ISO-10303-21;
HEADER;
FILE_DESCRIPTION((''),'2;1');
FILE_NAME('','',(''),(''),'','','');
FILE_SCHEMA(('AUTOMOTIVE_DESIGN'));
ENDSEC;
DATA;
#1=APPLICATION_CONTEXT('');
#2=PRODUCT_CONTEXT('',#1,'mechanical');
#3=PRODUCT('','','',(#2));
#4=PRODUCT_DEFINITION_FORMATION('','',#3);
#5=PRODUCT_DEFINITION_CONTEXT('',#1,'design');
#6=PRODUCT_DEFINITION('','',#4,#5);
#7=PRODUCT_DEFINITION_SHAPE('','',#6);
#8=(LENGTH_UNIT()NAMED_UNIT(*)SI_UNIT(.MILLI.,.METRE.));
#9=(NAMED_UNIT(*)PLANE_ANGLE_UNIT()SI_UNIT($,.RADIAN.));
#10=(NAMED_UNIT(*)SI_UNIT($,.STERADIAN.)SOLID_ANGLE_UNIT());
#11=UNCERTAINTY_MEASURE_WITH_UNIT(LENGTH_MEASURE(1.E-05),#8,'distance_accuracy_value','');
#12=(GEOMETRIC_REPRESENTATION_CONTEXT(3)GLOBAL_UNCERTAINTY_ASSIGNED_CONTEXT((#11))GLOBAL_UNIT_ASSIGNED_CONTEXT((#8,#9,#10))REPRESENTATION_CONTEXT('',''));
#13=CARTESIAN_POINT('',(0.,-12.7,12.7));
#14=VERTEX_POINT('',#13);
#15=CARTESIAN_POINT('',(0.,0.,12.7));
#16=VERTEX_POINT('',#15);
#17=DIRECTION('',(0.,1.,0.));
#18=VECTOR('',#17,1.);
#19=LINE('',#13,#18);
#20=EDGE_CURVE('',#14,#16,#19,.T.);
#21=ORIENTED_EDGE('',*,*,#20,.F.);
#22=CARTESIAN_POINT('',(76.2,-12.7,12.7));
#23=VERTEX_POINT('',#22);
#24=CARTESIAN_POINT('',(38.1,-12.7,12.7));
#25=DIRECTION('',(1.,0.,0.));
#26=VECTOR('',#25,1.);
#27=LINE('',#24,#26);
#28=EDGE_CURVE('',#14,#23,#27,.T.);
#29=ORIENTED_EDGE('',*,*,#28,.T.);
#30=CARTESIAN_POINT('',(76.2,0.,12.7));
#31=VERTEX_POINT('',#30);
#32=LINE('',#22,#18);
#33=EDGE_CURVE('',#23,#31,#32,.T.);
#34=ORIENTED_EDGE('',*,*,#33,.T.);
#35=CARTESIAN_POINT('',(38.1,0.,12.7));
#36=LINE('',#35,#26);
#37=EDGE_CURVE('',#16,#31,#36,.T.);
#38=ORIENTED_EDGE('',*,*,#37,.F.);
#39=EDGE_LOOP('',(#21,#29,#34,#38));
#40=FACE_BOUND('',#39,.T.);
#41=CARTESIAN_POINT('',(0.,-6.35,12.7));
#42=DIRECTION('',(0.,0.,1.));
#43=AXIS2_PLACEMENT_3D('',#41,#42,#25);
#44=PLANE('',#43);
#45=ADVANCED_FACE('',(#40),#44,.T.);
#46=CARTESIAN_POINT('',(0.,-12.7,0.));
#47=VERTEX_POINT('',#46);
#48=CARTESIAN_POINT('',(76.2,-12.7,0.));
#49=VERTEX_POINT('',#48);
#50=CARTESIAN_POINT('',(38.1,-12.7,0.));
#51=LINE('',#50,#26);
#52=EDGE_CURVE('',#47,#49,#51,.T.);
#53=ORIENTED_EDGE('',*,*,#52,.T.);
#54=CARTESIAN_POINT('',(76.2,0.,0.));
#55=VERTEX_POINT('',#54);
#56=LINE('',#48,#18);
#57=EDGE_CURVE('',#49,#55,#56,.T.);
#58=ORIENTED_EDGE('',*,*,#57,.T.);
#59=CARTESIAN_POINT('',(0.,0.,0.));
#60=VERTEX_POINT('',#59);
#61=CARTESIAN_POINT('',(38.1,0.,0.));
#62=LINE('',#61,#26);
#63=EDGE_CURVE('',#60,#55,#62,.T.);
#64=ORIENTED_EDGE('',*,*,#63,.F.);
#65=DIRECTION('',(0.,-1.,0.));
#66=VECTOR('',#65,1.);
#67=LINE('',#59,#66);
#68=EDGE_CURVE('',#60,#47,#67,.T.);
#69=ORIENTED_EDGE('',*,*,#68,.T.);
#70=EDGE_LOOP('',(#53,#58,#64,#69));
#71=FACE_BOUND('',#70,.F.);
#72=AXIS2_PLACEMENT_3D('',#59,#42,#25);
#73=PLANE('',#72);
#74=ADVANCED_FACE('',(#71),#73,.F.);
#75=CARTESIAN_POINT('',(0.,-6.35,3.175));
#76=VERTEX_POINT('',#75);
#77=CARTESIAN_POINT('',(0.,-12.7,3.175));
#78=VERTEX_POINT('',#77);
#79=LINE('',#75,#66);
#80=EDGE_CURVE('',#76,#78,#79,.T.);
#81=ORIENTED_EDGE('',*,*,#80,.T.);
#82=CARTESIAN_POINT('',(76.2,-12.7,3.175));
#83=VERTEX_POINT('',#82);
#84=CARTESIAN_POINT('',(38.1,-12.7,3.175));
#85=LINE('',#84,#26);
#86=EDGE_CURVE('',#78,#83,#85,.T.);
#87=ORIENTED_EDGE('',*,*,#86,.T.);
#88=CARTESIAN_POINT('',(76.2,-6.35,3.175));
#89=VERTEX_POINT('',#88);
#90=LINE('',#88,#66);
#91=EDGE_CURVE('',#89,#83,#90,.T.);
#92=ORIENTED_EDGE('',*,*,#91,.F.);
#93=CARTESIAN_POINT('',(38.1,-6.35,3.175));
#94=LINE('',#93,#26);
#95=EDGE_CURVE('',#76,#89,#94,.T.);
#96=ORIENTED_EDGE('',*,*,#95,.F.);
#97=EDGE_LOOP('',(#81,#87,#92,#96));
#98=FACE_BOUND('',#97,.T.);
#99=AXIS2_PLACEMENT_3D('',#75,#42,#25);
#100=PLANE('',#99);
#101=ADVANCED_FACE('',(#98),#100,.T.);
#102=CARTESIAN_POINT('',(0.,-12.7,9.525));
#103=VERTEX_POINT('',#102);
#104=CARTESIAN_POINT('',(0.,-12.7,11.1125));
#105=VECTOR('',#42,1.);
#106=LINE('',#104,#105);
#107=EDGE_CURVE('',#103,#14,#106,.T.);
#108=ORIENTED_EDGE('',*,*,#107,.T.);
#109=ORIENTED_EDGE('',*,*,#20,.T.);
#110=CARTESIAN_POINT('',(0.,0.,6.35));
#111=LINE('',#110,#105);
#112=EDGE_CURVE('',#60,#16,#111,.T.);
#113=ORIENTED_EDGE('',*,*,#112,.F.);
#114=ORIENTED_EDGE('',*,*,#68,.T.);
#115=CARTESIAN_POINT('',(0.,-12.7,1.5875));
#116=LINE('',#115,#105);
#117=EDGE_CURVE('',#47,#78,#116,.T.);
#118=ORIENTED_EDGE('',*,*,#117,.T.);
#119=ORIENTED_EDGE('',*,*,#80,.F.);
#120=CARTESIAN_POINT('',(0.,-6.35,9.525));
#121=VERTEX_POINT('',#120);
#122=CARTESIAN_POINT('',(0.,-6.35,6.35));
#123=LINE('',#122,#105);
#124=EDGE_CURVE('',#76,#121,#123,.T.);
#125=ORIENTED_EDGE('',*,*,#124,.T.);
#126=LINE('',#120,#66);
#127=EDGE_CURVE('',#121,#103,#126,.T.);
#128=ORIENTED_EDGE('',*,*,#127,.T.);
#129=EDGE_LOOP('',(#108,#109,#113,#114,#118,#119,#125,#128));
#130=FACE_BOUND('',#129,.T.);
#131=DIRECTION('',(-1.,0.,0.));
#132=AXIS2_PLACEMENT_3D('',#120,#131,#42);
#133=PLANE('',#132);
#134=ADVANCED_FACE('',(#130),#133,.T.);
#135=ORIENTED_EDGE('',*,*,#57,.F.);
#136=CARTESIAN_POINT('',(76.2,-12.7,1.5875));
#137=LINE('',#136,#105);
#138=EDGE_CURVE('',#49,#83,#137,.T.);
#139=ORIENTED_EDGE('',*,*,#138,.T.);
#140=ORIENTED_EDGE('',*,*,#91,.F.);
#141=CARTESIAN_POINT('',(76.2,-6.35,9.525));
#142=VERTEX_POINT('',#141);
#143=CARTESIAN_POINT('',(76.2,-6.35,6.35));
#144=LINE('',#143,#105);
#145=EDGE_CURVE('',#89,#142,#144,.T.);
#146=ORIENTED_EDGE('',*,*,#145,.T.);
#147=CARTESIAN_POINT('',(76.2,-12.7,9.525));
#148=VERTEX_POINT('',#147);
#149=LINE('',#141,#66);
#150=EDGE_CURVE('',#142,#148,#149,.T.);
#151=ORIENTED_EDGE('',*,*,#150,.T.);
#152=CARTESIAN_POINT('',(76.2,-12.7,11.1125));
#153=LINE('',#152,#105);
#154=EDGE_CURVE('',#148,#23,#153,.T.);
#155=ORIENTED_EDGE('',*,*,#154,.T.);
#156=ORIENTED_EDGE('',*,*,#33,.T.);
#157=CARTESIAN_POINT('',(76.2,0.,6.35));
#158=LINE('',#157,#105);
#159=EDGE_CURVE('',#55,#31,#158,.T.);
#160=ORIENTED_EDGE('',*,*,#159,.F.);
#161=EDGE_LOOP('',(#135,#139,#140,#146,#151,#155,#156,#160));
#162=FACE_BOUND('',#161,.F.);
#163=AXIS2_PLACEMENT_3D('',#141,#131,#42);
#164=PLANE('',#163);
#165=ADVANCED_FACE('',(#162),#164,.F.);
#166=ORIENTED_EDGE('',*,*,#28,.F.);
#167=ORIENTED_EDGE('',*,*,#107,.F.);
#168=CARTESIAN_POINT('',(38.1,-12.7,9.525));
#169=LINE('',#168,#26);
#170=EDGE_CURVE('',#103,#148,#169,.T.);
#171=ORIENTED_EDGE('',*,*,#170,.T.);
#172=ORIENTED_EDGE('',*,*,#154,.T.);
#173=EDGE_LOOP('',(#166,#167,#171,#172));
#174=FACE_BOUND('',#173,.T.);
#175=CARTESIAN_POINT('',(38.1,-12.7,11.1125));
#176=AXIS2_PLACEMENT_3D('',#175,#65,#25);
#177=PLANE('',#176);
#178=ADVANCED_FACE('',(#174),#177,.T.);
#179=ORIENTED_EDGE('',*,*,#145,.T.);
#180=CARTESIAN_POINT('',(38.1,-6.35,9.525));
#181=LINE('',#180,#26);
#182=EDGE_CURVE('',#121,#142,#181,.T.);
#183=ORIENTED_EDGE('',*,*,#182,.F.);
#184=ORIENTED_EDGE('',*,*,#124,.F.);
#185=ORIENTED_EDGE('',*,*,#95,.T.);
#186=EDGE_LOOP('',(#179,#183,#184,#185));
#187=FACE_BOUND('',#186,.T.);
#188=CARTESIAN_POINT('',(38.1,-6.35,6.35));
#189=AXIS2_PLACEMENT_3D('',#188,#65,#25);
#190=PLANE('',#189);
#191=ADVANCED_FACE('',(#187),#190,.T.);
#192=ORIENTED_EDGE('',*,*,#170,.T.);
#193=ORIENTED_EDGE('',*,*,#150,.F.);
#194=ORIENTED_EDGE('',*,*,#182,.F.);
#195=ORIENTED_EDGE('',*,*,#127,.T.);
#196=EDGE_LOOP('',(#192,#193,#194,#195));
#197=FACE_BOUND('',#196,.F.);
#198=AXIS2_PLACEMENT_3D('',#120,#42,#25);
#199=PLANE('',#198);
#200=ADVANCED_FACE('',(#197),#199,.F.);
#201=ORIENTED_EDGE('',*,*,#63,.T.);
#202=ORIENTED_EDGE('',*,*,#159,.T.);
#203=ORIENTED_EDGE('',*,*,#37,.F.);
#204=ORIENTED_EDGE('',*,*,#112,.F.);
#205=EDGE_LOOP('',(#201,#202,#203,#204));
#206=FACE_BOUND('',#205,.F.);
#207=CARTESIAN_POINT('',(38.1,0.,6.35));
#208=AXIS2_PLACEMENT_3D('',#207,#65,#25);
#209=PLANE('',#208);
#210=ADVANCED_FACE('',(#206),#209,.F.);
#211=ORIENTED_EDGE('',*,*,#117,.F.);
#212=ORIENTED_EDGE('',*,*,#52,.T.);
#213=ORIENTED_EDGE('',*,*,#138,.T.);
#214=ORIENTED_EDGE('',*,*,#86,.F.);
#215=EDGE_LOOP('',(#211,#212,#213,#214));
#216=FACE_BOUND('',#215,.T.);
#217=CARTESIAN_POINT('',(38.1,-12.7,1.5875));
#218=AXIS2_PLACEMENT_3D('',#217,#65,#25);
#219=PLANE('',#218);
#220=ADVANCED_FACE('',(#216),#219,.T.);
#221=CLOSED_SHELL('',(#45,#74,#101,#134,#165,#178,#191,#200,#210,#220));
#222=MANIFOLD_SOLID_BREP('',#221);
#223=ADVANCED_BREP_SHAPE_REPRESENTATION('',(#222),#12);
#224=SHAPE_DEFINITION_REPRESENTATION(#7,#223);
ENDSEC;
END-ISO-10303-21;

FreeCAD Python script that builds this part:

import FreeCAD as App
import Part
import Sketcher

V = App.Vector
Q = App.Units.Quantity


def add_polygon(sketch, points):
    """Adds a closed chain of lines whose ends are joined by coincident constraints."""
    first, n = sketch.GeometryCount, len(points)
    for a, b in zip(points, points[1:] + points[:1]):
        sketch.addGeometry(Part.LineSegment(App.Vector(*a, 0), App.Vector(*b, 0)), False)
    for i in range(n):
        sketch.addConstraint(Sketcher.Constraint("Coincident", first + i, 2, first + (i + 1) % n, 1))

doc = App.newDocument("Part")
body = doc.addObject("PartDesign::Body", "Body")

sketch1 = doc.addObject("Sketcher::SketchObject", "Sketch")
body.addObject(sketch1)
sketch1.AttachmentSupport = (doc.XZ_Plane, [""])
sketch1.MapMode = "FlatFace"
add_polygon(sketch1, [(0, 13), (0, 0), (76, 0), (76, 13)])
sketch1.addConstraint(Sketcher.Constraint("Vertical", 0))
sketch1.addConstraint(Sketcher.Constraint("Horizontal", 1))
sketch1.addConstraint(Sketcher.Constraint("Vertical", 2))
sketch1.addConstraint(Sketcher.Constraint("Horizontal", 3))
sketch1.addConstraint(Sketcher.Constraint("Coincident", 0, 2, -1, 1))
sketch1.addConstraint(Sketcher.Constraint("DistanceX", 1, 1, 1, 2, Q("3 in")))
sketch1.addConstraint(Sketcher.Constraint("DistanceY", 0, 2, 0, 1, Q("0.5 in")))
pad1 = doc.addObject("PartDesign::Pad", "Pad")
body.addObject(pad1)
pad1.Profile = sketch1
pad1.Length = Q("0.25 in")

sketch2 = doc.addObject("Sketcher::SketchObject", "Sketch001")
body.addObject(sketch2)
sketch2.AttachmentSupport = (doc.XZ_Plane, [""])
sketch2.MapMode = "FlatFace"
sketch2.AttachmentOffset = App.Placement(V(0, 0, 0.25 * 25.4), App.Rotation())
add_polygon(sketch2, [(0, 12.7), (0, 9.5), (76.2, 9.5), (76.2, 12.7)])
add_polygon(sketch2, [(0, 3.2), (0, 0), (76.2, 0), (76.2, 3.2)])
sketch2.addConstraint(Sketcher.Constraint("Vertical", 0))
sketch2.addConstraint(Sketcher.Constraint("Horizontal", 1))
sketch2.addConstraint(Sketcher.Constraint("Vertical", 2))
sketch2.addConstraint(Sketcher.Constraint("Horizontal", 3))
sketch2.addConstraint(Sketcher.Constraint("Vertical", 4))
sketch2.addConstraint(Sketcher.Constraint("Horizontal", 5))
sketch2.addConstraint(Sketcher.Constraint("Vertical", 6))
sketch2.addConstraint(Sketcher.Constraint("Horizontal", 7))
sketch2.addConstraint(Sketcher.Constraint("Coincident", 4, 2, -1, 1))
sketch2.addConstraint(Sketcher.Constraint("PointOnObject", 0, 2, -2))
sketch2.addConstraint(Sketcher.Constraint("Vertical", 2, 2, 5, 2))
sketch2.addConstraint(Sketcher.Constraint("Equal", 2, 4))
sketch2.addConstraint(Sketcher.Constraint("DistanceX", 1, 1, 1, 2, Q("3 in")))
sketch2.addConstraint(Sketcher.Constraint("DistanceY", -1, 1, 2, 2, Q("0.5 in")))
sketch2.addConstraint(Sketcher.Constraint("DistanceY", 0, 2, 0, 1, Q("0.125 in")))
pad2 = doc.addObject("PartDesign::Pad", "Pad001")
body.addObject(pad2)
pad2.Profile = sketch2
pad2.Length = Q("0.25 in")

doc.recompute()
